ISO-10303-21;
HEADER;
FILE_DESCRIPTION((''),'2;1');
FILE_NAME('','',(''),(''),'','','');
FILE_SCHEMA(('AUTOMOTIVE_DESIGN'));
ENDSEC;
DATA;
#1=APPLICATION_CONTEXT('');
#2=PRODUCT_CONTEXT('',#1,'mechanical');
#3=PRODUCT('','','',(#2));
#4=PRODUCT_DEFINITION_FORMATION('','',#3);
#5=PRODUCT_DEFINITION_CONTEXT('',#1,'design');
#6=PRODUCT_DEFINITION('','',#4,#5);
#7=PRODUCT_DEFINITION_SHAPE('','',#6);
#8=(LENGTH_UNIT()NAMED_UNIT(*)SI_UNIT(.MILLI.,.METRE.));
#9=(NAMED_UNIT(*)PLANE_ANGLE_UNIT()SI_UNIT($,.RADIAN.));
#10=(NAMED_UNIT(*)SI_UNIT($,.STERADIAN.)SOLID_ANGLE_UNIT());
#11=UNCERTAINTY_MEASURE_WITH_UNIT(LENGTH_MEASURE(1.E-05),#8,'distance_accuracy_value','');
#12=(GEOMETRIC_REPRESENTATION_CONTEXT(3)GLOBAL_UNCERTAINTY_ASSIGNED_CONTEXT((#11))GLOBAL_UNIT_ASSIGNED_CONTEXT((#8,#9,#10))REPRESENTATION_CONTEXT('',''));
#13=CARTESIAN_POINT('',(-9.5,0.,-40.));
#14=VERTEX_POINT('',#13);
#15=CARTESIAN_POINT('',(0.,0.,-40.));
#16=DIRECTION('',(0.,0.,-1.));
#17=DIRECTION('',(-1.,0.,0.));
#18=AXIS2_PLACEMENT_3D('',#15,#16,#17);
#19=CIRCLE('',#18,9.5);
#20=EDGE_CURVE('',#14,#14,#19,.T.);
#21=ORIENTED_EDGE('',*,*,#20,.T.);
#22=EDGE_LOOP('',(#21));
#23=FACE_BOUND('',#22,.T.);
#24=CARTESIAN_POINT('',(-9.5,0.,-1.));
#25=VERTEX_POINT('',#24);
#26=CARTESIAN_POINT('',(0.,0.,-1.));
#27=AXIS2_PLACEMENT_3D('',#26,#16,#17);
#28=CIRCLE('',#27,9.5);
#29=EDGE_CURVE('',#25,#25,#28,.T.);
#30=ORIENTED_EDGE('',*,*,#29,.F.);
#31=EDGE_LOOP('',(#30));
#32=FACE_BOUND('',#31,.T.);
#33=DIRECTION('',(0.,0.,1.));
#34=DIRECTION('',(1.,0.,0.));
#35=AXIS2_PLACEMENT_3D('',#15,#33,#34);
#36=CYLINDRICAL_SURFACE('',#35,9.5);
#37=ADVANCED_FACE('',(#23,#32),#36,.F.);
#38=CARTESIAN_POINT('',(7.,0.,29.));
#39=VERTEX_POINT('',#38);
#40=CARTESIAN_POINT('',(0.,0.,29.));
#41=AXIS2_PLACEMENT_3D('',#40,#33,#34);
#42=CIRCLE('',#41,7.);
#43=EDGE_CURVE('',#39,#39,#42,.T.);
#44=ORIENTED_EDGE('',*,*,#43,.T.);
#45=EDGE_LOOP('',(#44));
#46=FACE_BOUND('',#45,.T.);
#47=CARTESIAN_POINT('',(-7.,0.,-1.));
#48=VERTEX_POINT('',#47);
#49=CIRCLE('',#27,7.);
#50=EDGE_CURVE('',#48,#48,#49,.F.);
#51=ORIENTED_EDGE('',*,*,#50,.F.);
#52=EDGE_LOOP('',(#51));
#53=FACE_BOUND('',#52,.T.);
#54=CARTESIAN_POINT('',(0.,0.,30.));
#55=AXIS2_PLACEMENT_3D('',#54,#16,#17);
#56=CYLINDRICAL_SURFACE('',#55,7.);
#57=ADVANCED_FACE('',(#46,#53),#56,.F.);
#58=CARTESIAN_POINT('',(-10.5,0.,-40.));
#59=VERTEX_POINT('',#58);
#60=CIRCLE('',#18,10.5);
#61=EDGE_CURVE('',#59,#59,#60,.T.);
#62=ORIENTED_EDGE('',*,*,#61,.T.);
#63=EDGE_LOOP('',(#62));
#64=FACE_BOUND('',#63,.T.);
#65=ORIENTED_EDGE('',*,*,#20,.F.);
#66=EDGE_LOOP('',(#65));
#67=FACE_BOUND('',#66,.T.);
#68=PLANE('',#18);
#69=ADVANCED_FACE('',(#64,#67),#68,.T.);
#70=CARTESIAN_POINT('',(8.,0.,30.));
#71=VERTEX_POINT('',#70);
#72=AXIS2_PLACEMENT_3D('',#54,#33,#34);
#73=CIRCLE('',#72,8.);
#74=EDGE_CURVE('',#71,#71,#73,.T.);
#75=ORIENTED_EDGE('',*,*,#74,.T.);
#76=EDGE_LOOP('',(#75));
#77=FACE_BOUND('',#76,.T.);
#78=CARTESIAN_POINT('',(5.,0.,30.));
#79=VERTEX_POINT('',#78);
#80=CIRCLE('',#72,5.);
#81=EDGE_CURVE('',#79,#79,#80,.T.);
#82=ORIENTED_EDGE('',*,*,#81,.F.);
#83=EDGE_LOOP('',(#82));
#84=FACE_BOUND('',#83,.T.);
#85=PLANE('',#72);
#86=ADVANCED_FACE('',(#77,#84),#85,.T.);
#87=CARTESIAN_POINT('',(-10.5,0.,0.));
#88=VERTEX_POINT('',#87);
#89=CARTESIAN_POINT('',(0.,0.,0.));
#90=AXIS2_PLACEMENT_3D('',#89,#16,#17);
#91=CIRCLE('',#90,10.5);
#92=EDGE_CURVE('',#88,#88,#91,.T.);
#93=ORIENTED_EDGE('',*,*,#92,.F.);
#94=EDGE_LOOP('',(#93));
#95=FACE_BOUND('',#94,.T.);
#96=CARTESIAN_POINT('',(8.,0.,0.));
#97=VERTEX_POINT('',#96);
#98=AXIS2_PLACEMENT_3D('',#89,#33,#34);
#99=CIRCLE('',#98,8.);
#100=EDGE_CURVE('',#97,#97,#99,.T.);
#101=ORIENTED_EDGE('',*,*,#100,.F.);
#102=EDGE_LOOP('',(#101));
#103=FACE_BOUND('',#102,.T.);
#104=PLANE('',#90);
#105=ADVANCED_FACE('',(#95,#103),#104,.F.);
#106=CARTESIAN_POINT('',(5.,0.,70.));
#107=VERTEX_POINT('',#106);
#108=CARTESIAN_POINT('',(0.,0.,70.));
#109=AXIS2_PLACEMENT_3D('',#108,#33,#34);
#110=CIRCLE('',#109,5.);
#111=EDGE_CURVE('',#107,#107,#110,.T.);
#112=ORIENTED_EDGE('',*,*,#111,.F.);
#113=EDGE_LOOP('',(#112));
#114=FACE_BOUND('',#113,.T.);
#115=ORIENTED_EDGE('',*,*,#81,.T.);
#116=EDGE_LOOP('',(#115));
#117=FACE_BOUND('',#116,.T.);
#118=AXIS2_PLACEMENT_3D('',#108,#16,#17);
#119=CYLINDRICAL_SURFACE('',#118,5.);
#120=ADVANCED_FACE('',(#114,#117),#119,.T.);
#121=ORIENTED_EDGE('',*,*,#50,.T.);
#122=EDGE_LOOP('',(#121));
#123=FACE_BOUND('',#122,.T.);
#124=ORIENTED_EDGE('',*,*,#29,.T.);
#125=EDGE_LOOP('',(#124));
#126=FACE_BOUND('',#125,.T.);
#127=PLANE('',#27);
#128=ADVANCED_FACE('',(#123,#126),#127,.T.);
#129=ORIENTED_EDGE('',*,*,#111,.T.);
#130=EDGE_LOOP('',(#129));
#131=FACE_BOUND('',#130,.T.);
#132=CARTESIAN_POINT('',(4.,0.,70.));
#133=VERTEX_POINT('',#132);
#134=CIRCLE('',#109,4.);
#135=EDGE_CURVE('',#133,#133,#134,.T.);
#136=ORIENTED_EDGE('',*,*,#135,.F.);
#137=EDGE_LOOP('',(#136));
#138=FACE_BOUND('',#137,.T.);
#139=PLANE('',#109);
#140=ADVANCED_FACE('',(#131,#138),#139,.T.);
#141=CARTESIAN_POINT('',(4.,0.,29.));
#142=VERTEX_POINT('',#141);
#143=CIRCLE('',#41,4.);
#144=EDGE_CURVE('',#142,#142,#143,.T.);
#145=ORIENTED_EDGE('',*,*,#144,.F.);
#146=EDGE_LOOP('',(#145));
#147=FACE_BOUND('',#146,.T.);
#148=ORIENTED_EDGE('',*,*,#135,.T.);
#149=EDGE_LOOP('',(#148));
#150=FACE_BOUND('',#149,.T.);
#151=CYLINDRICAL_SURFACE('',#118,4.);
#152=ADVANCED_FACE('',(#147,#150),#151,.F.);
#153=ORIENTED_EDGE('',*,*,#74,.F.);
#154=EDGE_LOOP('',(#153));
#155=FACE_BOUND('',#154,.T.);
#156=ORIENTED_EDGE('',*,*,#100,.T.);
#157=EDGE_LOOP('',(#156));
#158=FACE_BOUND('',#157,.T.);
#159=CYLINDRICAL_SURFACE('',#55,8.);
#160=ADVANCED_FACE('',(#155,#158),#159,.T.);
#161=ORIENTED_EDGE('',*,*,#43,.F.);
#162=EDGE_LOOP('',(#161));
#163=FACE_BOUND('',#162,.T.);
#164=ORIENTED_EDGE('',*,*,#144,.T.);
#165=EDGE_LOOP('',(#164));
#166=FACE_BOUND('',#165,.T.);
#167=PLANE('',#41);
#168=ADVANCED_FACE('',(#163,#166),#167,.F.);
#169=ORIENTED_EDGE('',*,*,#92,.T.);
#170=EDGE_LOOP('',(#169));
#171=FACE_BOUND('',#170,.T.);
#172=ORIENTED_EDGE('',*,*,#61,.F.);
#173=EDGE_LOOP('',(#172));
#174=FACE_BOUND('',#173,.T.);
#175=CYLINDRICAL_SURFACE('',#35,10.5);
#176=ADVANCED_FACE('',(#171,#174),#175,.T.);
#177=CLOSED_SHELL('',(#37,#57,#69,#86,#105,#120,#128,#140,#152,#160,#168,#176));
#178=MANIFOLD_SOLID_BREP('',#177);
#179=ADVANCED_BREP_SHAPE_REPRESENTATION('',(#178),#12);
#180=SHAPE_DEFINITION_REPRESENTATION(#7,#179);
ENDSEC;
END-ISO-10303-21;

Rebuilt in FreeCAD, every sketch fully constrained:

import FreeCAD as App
import Part
import Sketcher
from FreeCAD import Vector


def faces_at(feature, points):
    """Names of the faces that lie closest to the given points."""
    faces = feature.Shape.Faces
    near = lambda p: min(range(len(faces)), key=lambda i: faces[i].distToShape(Part.Vertex(*p))[0])
    return sorted({f"Face{near(p) + 1}" for p in points})

doc = App.newDocument("Part")
body = doc.addObject("PartDesign::Body", "Body")

# Sketch on XY plane
sketch1 = body.newObject("Sketcher::SketchObject", "Sketch")
sketch1.AttachmentSupport = (doc.getObject("XY_Plane"), [""])
sketch1.MapMode = "FlatFace"
sketch1.addGeometry(Part.Circle(Vector(0, 0, 0), Vector(0, 0, 1), 8), False)
sketch1.addConstraint([
    Sketcher.Constraint("Coincident", 0, 3, -1, 1),
    Sketcher.Constraint("Diameter", 0, 16.0),
])
pad1 = body.newObject("PartDesign::Pad", "Pad")
pad1.Profile = sketch1
pad1.Length = 30

# Sketch on XY plane
sketch2 = body.newObject("Sketcher::SketchObject", "Sketch001")
sketch2.AttachmentSupport = (doc.getObject("XY_Plane"), [""])
sketch2.MapMode = "FlatFace"
sketch2.AttachmentOffset = App.Placement(Vector(0, 0, 30), App.Rotation())
sketch2.addGeometry(Part.Circle(Vector(0, 0, 0), Vector(0, 0, 1), 5), False)
sketch2.addConstraint([
    Sketcher.Constraint("Coincident", 0, 3, -1, 1),
    Sketcher.Constraint("Diameter", 0, 10.0),
])
pad2 = body.newObject("PartDesign::Pad", "Pad001")
pad2.Profile = sketch2
pad2.Length = 40

# Sketch on XY plane
sketch3 = body.newObject("Sketcher::SketchObject", "Sketch002")
sketch3.AttachmentSupport = (doc.getObject("XY_Plane"), [""])
sketch3.MapMode = "FlatFace"
sketch3.addGeometry(Part.Circle(Vector(0, 0, 0), Vector(0, 0, 1), 10), False)
sketch3.addConstraint([
    Sketcher.Constraint("Coincident", 0, 3, -1, 1),
    Sketcher.Constraint("Diameter", 0, 21.0),
])
pad3 = body.newObject("PartDesign::Pad", "Pad002")
pad3.Profile = sketch3
pad3.Length = 40
pad3.Reversed = True
doc.recompute()

thickness = body.newObject("PartDesign::Thickness", "Thickness")
thickness.Base = (pad3, faces_at(pad3, [(0, 0, 70)]))
thickness.Value = 1
thickness.Reversed = True
thickness.Join = "Intersection"

# Sketch on XY plane
sketch4 = body.newObject("Sketcher::SketchObject", "Sketch003")
sketch4.AttachmentSupport = (doc.getObject("XY_Plane"), [""])
sketch4.MapMode = "FlatFace"
sketch4.AttachmentOffset = App.Placement(Vector(0, 0, -40), App.Rotation())
sketch4.addGeometry(Part.Circle(Vector(0, 0, 0), Vector(0, 0, 1), 10), False)
sketch4.addConstraint([
    Sketcher.Constraint("Coincident", 0, 3, -1, 1),
    Sketcher.Constraint("Diameter", 0, 19.0),
])
pocket1 = body.newObject("PartDesign::Pocket", "Pocket")
pocket1.Profile = sketch4
pocket1.Type = "UpToFirst"
pocket1.Reversed = True

doc.recompute()
